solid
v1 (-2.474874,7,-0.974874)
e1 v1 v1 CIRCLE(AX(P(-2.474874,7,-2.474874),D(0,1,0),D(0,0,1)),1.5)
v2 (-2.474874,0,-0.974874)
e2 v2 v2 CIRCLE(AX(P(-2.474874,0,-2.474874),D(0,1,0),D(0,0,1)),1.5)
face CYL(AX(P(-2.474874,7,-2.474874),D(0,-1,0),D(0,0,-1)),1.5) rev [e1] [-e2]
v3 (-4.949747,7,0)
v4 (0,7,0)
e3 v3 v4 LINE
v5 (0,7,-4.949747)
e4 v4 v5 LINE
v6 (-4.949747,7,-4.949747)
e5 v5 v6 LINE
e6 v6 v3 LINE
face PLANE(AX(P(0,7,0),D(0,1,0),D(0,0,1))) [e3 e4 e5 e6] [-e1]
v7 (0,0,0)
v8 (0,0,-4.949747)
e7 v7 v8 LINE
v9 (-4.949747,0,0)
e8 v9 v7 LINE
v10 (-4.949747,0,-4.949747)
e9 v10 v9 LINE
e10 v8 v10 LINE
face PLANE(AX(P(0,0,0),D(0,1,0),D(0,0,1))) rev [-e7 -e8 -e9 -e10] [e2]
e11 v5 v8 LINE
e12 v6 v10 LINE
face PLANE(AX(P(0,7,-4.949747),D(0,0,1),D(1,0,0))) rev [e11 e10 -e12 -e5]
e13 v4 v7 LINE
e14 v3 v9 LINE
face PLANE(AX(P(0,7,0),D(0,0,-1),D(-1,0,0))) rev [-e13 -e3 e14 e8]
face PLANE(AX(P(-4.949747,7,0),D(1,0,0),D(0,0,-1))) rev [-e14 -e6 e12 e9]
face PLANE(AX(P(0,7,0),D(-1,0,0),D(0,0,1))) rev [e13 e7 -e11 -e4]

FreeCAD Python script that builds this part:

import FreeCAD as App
import Part
import Sketcher

V = App.Vector

doc = App.newDocument("Part")
params = doc.addObject("Spreadsheet::Sheet", "Params")
for row, (alias, value) in enumerate([
    ("sketch1_diameter", "3 mm"),
    ("pad1_length", "7 mm"),
], start=1):
    params.set(f"A{row}", alias)
    params.set(f"B{row}", "=" + value)
    params.setAlias(f"B{row}", alias)

body = doc.addObject("PartDesign::Body", "Body")

sketch1 = body.newObject("Sketcher::SketchObject", "Sketch")
sketch1.AttachmentSupport = (doc.getObject("XZ_Plane"), [""])
sketch1.MapMode = "FlatFace"
sketch1.addGeometry([
    Part.LineSegment(V(-4.949747, -4.949747, 0), V(-4.949747, 0, 0)),
    Part.LineSegment(V(-4.949747, 0, 0), V(0, 0, 0)),
    Part.LineSegment(V(0, 0, 0), V(0, -4.949747, 0)),
    Part.LineSegment(V(0, -4.949747, 0), V(-4.949747, -4.949747, 0)),
    Part.Circle(V(-2.474874, -2.474874, 0), V(0, 0, 1), 1.5),
], False)
sketch1.addConstraint([
    Sketcher.Constraint("Coincident", 0, 2, 1, 1),
    Sketcher.Constraint("Coincident", 1, 2, 2, 1),
    Sketcher.Constraint("Coincident", 2, 2, 3, 1),
    Sketcher.Constraint("Coincident", 3, 2, 0, 1),
    Sketcher.Constraint("Vertical", 0),
    Sketcher.Constraint("Horizontal", 1),
    Sketcher.Constraint("Vertical", 2),
    Sketcher.Constraint("Horizontal", 3),
    Sketcher.Constraint("Coincident", 1, 2, -1, 1),
    Sketcher.Constraint("Equal", 3, 0),
    Sketcher.Constraint("Diameter", 4, 3.0),
    Sketcher.Constraint("DistanceX", 1, 1, 1, 2, 4.949747),
    Sketcher.Constraint("DistanceX", 4, 3, -1, 1, 2.474874),
    Sketcher.Constraint("DistanceY", 4, 3, -1, 1, 2.474874),
])
sketch1.setExpression("Constraints[10]", "Params.sketch1_diameter")
pad1 = body.newObject("PartDesign::Pad", "Pad")
pad1.Profile = sketch1
pad1.setExpression("Length", "Params.pad1_length")
pad1.Reversed = True

doc.recompute()
